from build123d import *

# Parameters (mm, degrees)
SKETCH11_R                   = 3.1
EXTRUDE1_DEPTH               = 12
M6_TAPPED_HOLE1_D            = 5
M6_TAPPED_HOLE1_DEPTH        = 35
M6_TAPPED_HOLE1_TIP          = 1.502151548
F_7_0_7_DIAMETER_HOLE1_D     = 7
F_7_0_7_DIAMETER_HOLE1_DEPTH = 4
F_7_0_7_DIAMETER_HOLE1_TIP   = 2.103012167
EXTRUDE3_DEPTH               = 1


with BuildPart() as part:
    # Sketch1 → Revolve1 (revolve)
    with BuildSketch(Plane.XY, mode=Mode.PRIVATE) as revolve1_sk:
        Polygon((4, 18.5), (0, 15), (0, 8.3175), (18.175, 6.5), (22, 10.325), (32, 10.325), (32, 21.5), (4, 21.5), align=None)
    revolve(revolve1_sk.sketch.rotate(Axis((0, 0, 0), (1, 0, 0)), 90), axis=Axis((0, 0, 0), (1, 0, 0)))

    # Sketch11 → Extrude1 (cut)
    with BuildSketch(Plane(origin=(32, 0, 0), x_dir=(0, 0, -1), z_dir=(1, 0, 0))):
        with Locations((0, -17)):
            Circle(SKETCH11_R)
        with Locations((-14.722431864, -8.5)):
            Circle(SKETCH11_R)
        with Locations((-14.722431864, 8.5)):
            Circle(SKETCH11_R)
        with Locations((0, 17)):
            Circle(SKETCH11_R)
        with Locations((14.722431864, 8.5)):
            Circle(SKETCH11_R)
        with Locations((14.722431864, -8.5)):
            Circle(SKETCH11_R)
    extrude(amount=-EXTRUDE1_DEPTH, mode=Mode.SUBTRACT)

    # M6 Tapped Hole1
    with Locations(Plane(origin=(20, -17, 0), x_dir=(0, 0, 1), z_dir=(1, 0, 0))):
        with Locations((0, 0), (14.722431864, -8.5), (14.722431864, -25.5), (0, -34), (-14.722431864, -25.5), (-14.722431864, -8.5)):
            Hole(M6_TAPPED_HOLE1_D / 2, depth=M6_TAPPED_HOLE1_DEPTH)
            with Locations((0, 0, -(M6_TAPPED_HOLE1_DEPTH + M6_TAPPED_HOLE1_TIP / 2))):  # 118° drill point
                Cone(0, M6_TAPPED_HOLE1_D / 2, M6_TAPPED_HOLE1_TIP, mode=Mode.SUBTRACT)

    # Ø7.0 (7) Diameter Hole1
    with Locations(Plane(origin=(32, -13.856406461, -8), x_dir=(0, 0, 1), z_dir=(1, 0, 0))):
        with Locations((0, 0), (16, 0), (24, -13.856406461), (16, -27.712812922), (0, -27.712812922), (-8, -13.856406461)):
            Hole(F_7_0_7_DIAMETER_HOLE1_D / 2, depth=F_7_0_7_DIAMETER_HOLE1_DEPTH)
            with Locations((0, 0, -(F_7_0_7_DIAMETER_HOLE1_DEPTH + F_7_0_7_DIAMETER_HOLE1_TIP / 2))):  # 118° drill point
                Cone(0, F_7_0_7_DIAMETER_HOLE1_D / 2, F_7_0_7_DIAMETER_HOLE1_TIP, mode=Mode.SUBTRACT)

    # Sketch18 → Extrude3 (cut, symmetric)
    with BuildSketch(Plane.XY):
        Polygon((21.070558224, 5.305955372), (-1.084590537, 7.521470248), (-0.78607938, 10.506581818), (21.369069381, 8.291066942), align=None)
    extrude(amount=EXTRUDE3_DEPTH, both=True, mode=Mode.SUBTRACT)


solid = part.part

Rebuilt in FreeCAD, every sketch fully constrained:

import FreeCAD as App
import Part
import Sketcher
from FreeCAD import Vector
Q = App.Units.Quantity


def add_polygon(sketch, points):
    """Adds a closed chain of lines whose ends are joined by coincident constraints."""
    first, n = sketch.GeometryCount, len(points)
    for a, b in zip(points, points[1:] + points[:1]):
        sketch.addGeometry(Part.LineSegment(App.Vector(*a, 0), App.Vector(*b, 0)), False)
    for i in range(n):
        sketch.addConstraint(Sketcher.Constraint("Coincident", first + i, 2, first + (i + 1) % n, 1))

doc = App.newDocument("Part")
params = doc.addObject("Spreadsheet::Sheet", "Params")
for row, (alias, value) in enumerate([
    ("sketch1_width", "10 mm"),
    ("sketch1_width2", "28 mm"),
    ("sketch1_height", "3 mm"),
    ("revolution_angle", "360 deg"),
    ("sketch2_diameter", "6.2 mm"),
    ("pocket1_length", "12 mm"),
    ("sketch3_diameter", "5 mm"),
    ("hole_diameter", "5 mm"),
    ("hole_depth", "35 mm"),
    ("sketch4_diameter", "7 mm"),
    ("hole2_diameter", "7 mm"),
    ("hole2_depth", "4 mm"),
    ("sketch5_length", "3 mm"),
    ("pocket2_length", "2 mm"),
], start=1):
    params.set(f"A{row}", alias)
    params.set(f"B{row}", "=" + value)
    params.setAlias(f"B{row}", alias)

body = doc.addObject("PartDesign::Body", "Body")

# Sketch on XY plane
sketch1 = doc.addObject("Sketcher::SketchObject", "Sketch")
body.addObject(sketch1)
sketch1.AttachmentSupport = (doc.XY_Plane, [""])
sketch1.MapMode = "FlatFace"
add_polygon(sketch1, [(4, 18.5), (0, 15), (0, 8.3175), (18.175, 6.5), (22, 10.325), (32, 10.325), (32, 21.5), (4, 21.5)])  # lines 0-7
sketch1.addConstraint(Sketcher.Constraint("Vertical", 1))
sketch1.addConstraint(Sketcher.Constraint("Horizontal", 4))
sketch1.addConstraint(Sketcher.Constraint("Vertical", 5))
sketch1.addConstraint(Sketcher.Constraint("Horizontal", 6))
sketch1.addConstraint(Sketcher.Constraint("Vertical", 7))
sketch1.addConstraint(Sketcher.Constraint("PointOnObject", 0, 2, -2))
sketch1.addConstraint(Sketcher.Constraint("DistanceX", 4, 1, 4, 2, Q("10 mm")))
sketch1.addConstraint(Sketcher.Constraint("DistanceX", 6, 2, 6, 1, Q("28 mm")))
sketch1.addConstraint(Sketcher.Constraint("DistanceY", 7, 2, 7, 1, Q("3 mm")))
sketch1.addConstraint(Sketcher.Constraint("Angle", 3, Q("45 deg")))
sketch1.addConstraint(Sketcher.Constraint("DistanceY", -1, 1, 0, 2, Q("15 mm")))
sketch1.addConstraint(Sketcher.Constraint("DistanceX", -1, 1, 3, 2, Q("22 mm")))
sketch1.addConstraint(Sketcher.Constraint("DistanceY", 2, 2, 5, 2, Q("15 mm")))
sketch1.addConstraint(Sketcher.Constraint("DistanceY", -1, 1, 2, 2, Q("6.5 mm")))
sketch1.addConstraint(Sketcher.Constraint("DistanceY", 5, 1, 5, 2, Q("11.175 mm")))
sketch1.addConstraint(Sketcher.Constraint("DistanceY", 1, 2, 1, 1, Q("6.6825 mm")))
sketch1.setExpression("Constraints[14]", "Params.sketch1_width")
sketch1.setExpression("Constraints[15]", "Params.sketch1_width2")
sketch1.setExpression("Constraints[16]", "Params.sketch1_height")
revolution = doc.addObject("PartDesign::Revolution", "Revolution")
body.addObject(revolution)
revolution.Profile = sketch1
revolution.ReferenceAxis = (sketch1, ["H_Axis"])
revolution.setExpression("Angle", "Params.revolution_angle")

# Sketch on YZ plane
sketch2 = doc.addObject("Sketcher::SketchObject", "Sketch001")
body.addObject(sketch2)
sketch2.AttachmentSupport = (doc.YZ_Plane, [""])
sketch2.MapMode = "FlatFace"
sketch2.AttachmentOffset = App.Placement(Vector(0, 0, 32), App.Rotation())
sketch2.addGeometry(Part.Circle(Vector(-17, 0, 0), Vector(0, 0, 1), 3.1), False)
sketch2.addGeometry(Part.Circle(Vector(-8.5, 14.722432, 0), Vector(0, 0, 1), 3.1), False)
sketch2.addGeometry(Part.Circle(Vector(8.5, 14.722432, 0), Vector(0, 0, 1), 3.1), False)
sketch2.addGeometry(Part.Circle(Vector(17, 0, 0), Vector(0, 0, 1), 3.1), False)
sketch2.addGeometry(Part.Circle(Vector(8.5, -14.722432, 0), Vector(0, 0, 1), 3.1), False)
sketch2.addGeometry(Part.Circle(Vector(-8.5, -14.722432, 0), Vector(0, 0, 1), 3.1), False)
sketch2.addConstraint(Sketcher.Constraint("Equal", 0, 1))
sketch2.addConstraint(Sketcher.Constraint("Equal", 1, 2))
sketch2.addConstraint(Sketcher.Constraint("Equal", 2, 3))
sketch2.addConstraint(Sketcher.Constraint("Equal", 3, 4))
sketch2.addConstraint(Sketcher.Constraint("Equal", 4, 5))
sketch2.addConstraint(Sketcher.Constraint("Symmetric", 0, 3, 3, 3, -1, 1))
sketch2.addConstraint(Sketcher.Constraint("Symmetric", 1, 3, 4, 3, -1, 1))
sketch2.addConstraint(Sketcher.Constraint("Symmetric", 2, 3, 5, 3, -1, 1))
sketch2.addConstraint(Sketcher.Constraint("Symmetric", 1, 3, 2, 3, -2))
sketch2.addConstraint(Sketcher.Constraint("PointOnObject", 0, 3, -1))
sketch2.addConstraint(Sketcher.Constraint("Diameter", 0, Q("6.2 mm")))
sketch2.addConstraint(Sketcher.Constraint("DistanceX", 0, 3, -1, 1, Q("17 mm")))
sketch2.addConstraint(Sketcher.Constraint("DistanceX", 1, 3, 2, 3, Q("17 mm")))
sketch2.addConstraint(Sketcher.Constraint("DistanceY", -1, 1, 1, 3, Q("14.722432 mm")))
sketch2.setExpression("Constraints[10]", "Params.sketch2_diameter")
pocket1 = doc.addObject("PartDesign::Pocket", "Pocket")
body.addObject(pocket1)
pocket1.Profile = sketch2
pocket1.setExpression("Length", "Params.pocket1_length")

# Sketch on YZ plane
sketch3 = doc.addObject("Sketcher::SketchObject", "Sketch002")
body.addObject(sketch3)
sketch3.AttachmentSupport = (doc.YZ_Plane, [""])
sketch3.MapMode = "FlatFace"
sketch3.AttachmentOffset = App.Placement(Vector(0, 0, 20), App.Rotation())
sketch3.addGeometry(Part.Circle(Vector(-17, 0, 0), Vector(0, 0, 1), 2.5), False)
sketch3.addGeometry(Part.Circle(Vector(-8.5, 14.722432, 0), Vector(0, 0, 1), 2.5), False)
sketch3.addGeometry(Part.Circle(Vector(8.5, 14.722432, 0), Vector(0, 0, 1), 2.5), False)
sketch3.addGeometry(Part.Circle(Vector(17, 0, 0), Vector(0, 0, 1), 2.5), False)
sketch3.addGeometry(Part.Circle(Vector(8.5, -14.722432, 0), Vector(0, 0, 1), 2.5), False)
sketch3.addGeometry(Part.Circle(Vector(-8.5, -14.722432, 0), Vector(0, 0, 1), 2.5), False)
sketch3.addConstraint(Sketcher.Constraint("Equal", 0, 1))
sketch3.addConstraint(Sketcher.Constraint("Equal", 1, 2))
sketch3.addConstraint(Sketcher.Constraint("Equal", 2, 3))
sketch3.addConstraint(Sketcher.Constraint("Equal", 3, 4))
sketch3.addConstraint(Sketcher.Constraint("Equal", 4, 5))
sketch3.addConstraint(Sketcher.Constraint("Symmetric", 0, 3, 3, 3, -1, 1))
sketch3.addConstraint(Sketcher.Constraint("Symmetric", 1, 3, 4, 3, -1, 1))
sketch3.addConstraint(Sketcher.Constraint("Symmetric", 2, 3, 5, 3, -1, 1))
sketch3.addConstraint(Sketcher.Constraint("Symmetric", 1, 3, 2, 3, -2))
sketch3.addConstraint(Sketcher.Constraint("PointOnObject", 0, 3, -1))
sketch3.addConstraint(Sketcher.Constraint("Diameter", 0, Q("5 mm")))
sketch3.addConstraint(Sketcher.Constraint("DistanceX", 0, 3, -1, 1, Q("17 mm")))
sketch3.addConstraint(Sketcher.Constraint("DistanceX", 1, 3, 2, 3, Q("17 mm")))
sketch3.addConstraint(Sketcher.Constraint("DistanceY", -1, 1, 1, 3, Q("14.722432 mm")))
sketch3.setExpression("Constraints[10]", "Params.sketch3_diameter")
doc.recompute()
hole = doc.addObject("PartDesign::Hole", "Hole")
body.addObject(hole)
hole.Profile = sketch3
hole.ThreadType = "None"
hole.setExpression("Diameter", "Params.hole_diameter")
hole.DepthType = "Dimension"
hole.setExpression("Depth", "Params.hole_depth")
hole.DrillPoint = "Angled"
hole.DrillPointAngle = 118

# Sketch on YZ plane
sketch4 = doc.addObject("Sketcher::SketchObject", "Sketch003")
body.addObject(sketch4)
sketch4.AttachmentSupport = (doc.YZ_Plane, [""])
sketch4.MapMode = "FlatFace"
sketch4.AttachmentOffset = App.Placement(Vector(0, 0, 32), App.Rotation())
sketch4.addGeometry(Part.Circle(Vector(-13.856406, -8, 0), Vector(0, 0, 1), 3.5), False)
sketch4.addGeometry(Part.Circle(Vector(-13.856406, 8, 0), Vector(0, 0, 1), 3.5), False)
sketch4.addGeometry(Part.Circle(Vector(0, 16, 0), Vector(0, 0, 1), 3.5), False)
sketch4.addGeometry(Part.Circle(Vector(13.856406, 8, 0), Vector(0, 0, 1), 3.5), False)
sketch4.addGeometry(Part.Circle(Vector(13.856406, -8, 0), Vector(0, 0, 1), 3.5), False)
sketch4.addGeometry(Part.Circle(Vector(0, -16, 0), Vector(0, 0, 1), 3.5), False)
sketch4.addConstraint(Sketcher.Constraint("Equal", 0, 1))
sketch4.addConstraint(Sketcher.Constraint("Equal", 1, 2))
sketch4.addConstraint(Sketcher.Constraint("Equal", 2, 3))
sketch4.addConstraint(Sketcher.Constraint("Equal", 3, 4))
sketch4.addConstraint(Sketcher.Constraint("Equal", 4, 5))
sketch4.addConstraint(Sketcher.Constraint("Symmetric", 0, 3, 3, 3, -1, 1))
sketch4.addConstraint(Sketcher.Constraint("Symmetric", 1, 3, 4, 3, -1, 1))
sketch4.addConstraint(Sketcher.Constraint("Symmetric", 2, 3, 5, 3, -1, 1))
sketch4.addConstraint(Sketcher.Constraint("Symmetric", 1, 3, 3, 3, -2))
sketch4.addConstraint(Sketcher.Constraint("PointOnObject", 2, 3, -2))
sketch4.addConstraint(Sketcher.Constraint("Diameter", 0, Q("7 mm")))
sketch4.addConstraint(Sketcher.Constraint("DistanceY", 0, 3, -1, 1, Q("8 mm")))
sketch4.addConstraint(Sketcher.Constraint("DistanceY", -1, 1, 2, 3, Q("16 mm")))
sketch4.addConstraint(Sketcher.Constraint("DistanceX", 0, 3, -1, 1, Q("13.856406 mm")))
sketch4.setExpression("Constraints[10]", "Params.sketch4_diameter")
doc.recompute()
hole2 = doc.addObject("PartDesign::Hole", "Hole001")
body.addObject(hole2)
hole2.Profile = sketch4
hole2.ThreadType = "None"
hole2.setExpression("Diameter", "Params.hole2_diameter")
hole2.DepthType = "Dimension"
hole2.setExpression("Depth", "Params.hole2_depth")
hole2.DrillPoint = "Angled"
hole2.DrillPointAngle = 118

# Sketch on XY plane
sketch5 = doc.addObject("Sketcher::SketchObject", "Sketch004")
body.addObject(sketch5)
sketch5.AttachmentSupport = (doc.XY_Plane, [""])
sketch5.MapMode = "FlatFace"
add_polygon(sketch5, [(-1.084591, 7.52147), (21.070558, 5.305955), (21.369069, 8.291067), (-0.786079, 10.506582)])  # lines 0-3
sketch5.addConstraint(Sketcher.Constraint("Perpendicular", 0, 1))
sketch5.addConstraint(Sketcher.Constraint("Perpendicular", 1, 2))
sketch5.addConstraint(Sketcher.Constraint("Perpendicular", 2, 3))
sketch5.addConstraint(Sketcher.Constraint("Distance", 1, Q("3 mm")))
sketch5.addConstraint(Sketcher.Constraint("Distance", 0, Q("22.265649 mm")))
sketch5.addConstraint(Sketcher.Constraint("DistanceX", -1, 1, 0, 2, Q("21.070558 mm")))
sketch5.addConstraint(Sketcher.Constraint("DistanceX", -1, 1, 1, 2, Q("21.369069 mm")))
sketch5.addConstraint(Sketcher.Constraint("DistanceY", -1, 1, 2, 2, Q("10.506582 mm")))
sketch5.setExpression("Constraints[7]", "Params.sketch5_length")
pocket2 = doc.addObject("PartDesign::Pocket", "Pocket001")
body.addObject(pocket2)
pocket2.Profile = sketch5
pocket2.setExpression("Length", "Params.pocket2_length")
pocket2.Midplane = True

doc.recompute()
